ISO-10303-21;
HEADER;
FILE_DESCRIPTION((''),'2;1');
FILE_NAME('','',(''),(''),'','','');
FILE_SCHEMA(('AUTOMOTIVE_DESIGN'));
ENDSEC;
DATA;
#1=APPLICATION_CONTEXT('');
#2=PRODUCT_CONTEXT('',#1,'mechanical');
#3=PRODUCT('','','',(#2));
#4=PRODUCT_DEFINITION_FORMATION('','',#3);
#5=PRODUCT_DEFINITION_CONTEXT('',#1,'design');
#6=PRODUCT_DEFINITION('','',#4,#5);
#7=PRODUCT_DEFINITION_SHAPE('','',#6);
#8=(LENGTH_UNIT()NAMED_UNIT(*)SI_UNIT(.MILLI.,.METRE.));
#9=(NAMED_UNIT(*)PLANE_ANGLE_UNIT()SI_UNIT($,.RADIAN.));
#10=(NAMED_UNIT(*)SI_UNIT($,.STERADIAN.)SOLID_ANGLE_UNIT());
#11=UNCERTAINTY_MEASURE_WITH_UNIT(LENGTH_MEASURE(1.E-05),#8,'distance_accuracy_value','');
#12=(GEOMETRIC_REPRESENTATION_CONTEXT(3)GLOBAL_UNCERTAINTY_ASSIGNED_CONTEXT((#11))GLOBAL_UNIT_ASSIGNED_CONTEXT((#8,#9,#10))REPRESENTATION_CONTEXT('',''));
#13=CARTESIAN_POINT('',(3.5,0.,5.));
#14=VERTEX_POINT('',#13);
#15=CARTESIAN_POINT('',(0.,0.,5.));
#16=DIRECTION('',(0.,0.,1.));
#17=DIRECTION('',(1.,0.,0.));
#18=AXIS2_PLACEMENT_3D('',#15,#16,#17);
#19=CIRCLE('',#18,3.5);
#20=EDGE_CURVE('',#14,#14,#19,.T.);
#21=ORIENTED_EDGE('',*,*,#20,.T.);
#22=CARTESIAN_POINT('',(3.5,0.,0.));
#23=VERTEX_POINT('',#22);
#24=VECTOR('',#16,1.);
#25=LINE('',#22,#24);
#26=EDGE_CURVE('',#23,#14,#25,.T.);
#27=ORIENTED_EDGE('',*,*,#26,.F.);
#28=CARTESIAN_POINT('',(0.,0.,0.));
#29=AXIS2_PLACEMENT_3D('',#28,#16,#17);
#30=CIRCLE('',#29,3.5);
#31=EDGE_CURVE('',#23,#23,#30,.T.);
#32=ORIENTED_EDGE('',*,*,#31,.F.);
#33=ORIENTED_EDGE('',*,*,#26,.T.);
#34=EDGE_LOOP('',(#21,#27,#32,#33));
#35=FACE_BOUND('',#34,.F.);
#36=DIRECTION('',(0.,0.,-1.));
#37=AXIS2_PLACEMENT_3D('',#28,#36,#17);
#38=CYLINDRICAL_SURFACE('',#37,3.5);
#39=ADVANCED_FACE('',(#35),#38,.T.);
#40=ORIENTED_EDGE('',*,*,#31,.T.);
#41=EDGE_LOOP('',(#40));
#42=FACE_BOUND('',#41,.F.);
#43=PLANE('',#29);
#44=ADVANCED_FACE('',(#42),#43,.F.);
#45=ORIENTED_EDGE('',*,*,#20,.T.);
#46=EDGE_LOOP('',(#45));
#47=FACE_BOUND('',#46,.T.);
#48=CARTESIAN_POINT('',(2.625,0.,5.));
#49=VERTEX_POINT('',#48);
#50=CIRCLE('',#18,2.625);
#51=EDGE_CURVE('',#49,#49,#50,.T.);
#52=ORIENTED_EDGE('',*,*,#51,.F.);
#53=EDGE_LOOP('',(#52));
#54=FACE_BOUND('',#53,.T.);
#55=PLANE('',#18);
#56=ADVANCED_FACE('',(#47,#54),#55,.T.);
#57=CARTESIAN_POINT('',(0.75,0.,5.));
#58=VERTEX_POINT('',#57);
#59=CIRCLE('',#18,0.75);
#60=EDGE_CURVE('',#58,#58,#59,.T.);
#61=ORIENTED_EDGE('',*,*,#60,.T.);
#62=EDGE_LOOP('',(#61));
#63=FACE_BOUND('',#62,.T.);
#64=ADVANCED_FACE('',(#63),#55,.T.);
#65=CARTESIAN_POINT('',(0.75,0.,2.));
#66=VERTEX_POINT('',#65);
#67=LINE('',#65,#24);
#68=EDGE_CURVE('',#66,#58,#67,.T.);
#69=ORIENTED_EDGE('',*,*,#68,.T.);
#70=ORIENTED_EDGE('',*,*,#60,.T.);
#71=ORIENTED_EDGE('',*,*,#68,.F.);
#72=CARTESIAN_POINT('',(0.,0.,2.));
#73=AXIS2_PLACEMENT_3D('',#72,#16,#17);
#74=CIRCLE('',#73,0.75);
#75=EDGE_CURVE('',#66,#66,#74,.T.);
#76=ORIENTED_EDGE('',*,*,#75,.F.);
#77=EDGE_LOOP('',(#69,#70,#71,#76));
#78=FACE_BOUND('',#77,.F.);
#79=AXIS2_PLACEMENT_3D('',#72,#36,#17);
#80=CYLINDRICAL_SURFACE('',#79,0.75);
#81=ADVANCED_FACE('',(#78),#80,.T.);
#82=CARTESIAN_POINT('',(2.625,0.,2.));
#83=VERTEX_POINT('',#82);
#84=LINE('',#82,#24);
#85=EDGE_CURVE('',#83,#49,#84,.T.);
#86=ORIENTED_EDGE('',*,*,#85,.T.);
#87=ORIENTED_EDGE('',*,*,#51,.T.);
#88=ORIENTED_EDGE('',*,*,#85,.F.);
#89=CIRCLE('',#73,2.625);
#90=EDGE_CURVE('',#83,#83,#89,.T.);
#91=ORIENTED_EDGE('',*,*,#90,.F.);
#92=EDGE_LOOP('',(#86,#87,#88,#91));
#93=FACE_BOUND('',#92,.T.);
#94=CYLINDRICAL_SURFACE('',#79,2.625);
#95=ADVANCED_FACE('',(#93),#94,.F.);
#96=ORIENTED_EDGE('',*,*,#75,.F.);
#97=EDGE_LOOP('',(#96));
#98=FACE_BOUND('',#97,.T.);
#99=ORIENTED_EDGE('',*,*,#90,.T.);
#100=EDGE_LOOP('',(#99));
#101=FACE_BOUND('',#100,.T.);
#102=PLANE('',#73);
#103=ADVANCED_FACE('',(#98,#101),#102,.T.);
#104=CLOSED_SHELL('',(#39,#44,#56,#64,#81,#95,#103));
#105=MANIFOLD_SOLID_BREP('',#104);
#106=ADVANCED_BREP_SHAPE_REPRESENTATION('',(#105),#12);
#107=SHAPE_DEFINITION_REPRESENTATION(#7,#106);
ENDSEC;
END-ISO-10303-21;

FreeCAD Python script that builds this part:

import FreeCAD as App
import Part
import Sketcher

V = App.Vector

doc = App.newDocument("Part")
body = doc.addObject("PartDesign::Body", "Body")

# Sketch on XY plane
sketch1 = doc.addObject("Sketcher::SketchObject", "Sketch")
body.addObject(sketch1)
sketch1.AttachmentSupport = (doc.XY_Plane, [""])
sketch1.MapMode = "FlatFace"
sketch1.addGeometry(Part.Circle(V(0, 0, 0), V(0, 0, 1), 3.5), False)
sketch1.addConstraint([
    Sketcher.Constraint("Coincident", 0, 3, -1, 1),
    Sketcher.Constraint("Diameter", 0, 7.0),
])
pad1 = doc.addObject("PartDesign::Pad", "Pad")
body.addObject(pad1)
pad1.Profile = sketch1
pad1.Length = 5

# Sketch on XY plane
sketch2 = doc.addObject("Sketcher::SketchObject", "Sketch001")
body.addObject(sketch2)
sketch2.AttachmentSupport = (doc.XY_Plane, [""])
sketch2.MapMode = "FlatFace"
sketch2.AttachmentOffset = App.Placement(V(0, 0, 2), App.Rotation())
sketch2.addGeometry([
    Part.Circle(V(0, 0, 0), V(0, 0, 1), 2.625),
    Part.Circle(V(0, 0, 0), V(0, 0, 1), 0.75),
], False)
sketch2.addConstraint([
    Sketcher.Constraint("Coincident", 0, 3, -1, 1),
    Sketcher.Constraint("Coincident", 1, 3, -1, 1),
    Sketcher.Constraint("Diameter", 1, 1.5),
    Sketcher.Constraint("Diameter", 0, 5.25),
])
pocket1 = doc.addObject("PartDesign::Pocket", "Pocket")
body.addObject(pocket1)
pocket1.Profile = sketch2
pocket1.Length = 3
pocket1.Reversed = True

doc.recompute()
